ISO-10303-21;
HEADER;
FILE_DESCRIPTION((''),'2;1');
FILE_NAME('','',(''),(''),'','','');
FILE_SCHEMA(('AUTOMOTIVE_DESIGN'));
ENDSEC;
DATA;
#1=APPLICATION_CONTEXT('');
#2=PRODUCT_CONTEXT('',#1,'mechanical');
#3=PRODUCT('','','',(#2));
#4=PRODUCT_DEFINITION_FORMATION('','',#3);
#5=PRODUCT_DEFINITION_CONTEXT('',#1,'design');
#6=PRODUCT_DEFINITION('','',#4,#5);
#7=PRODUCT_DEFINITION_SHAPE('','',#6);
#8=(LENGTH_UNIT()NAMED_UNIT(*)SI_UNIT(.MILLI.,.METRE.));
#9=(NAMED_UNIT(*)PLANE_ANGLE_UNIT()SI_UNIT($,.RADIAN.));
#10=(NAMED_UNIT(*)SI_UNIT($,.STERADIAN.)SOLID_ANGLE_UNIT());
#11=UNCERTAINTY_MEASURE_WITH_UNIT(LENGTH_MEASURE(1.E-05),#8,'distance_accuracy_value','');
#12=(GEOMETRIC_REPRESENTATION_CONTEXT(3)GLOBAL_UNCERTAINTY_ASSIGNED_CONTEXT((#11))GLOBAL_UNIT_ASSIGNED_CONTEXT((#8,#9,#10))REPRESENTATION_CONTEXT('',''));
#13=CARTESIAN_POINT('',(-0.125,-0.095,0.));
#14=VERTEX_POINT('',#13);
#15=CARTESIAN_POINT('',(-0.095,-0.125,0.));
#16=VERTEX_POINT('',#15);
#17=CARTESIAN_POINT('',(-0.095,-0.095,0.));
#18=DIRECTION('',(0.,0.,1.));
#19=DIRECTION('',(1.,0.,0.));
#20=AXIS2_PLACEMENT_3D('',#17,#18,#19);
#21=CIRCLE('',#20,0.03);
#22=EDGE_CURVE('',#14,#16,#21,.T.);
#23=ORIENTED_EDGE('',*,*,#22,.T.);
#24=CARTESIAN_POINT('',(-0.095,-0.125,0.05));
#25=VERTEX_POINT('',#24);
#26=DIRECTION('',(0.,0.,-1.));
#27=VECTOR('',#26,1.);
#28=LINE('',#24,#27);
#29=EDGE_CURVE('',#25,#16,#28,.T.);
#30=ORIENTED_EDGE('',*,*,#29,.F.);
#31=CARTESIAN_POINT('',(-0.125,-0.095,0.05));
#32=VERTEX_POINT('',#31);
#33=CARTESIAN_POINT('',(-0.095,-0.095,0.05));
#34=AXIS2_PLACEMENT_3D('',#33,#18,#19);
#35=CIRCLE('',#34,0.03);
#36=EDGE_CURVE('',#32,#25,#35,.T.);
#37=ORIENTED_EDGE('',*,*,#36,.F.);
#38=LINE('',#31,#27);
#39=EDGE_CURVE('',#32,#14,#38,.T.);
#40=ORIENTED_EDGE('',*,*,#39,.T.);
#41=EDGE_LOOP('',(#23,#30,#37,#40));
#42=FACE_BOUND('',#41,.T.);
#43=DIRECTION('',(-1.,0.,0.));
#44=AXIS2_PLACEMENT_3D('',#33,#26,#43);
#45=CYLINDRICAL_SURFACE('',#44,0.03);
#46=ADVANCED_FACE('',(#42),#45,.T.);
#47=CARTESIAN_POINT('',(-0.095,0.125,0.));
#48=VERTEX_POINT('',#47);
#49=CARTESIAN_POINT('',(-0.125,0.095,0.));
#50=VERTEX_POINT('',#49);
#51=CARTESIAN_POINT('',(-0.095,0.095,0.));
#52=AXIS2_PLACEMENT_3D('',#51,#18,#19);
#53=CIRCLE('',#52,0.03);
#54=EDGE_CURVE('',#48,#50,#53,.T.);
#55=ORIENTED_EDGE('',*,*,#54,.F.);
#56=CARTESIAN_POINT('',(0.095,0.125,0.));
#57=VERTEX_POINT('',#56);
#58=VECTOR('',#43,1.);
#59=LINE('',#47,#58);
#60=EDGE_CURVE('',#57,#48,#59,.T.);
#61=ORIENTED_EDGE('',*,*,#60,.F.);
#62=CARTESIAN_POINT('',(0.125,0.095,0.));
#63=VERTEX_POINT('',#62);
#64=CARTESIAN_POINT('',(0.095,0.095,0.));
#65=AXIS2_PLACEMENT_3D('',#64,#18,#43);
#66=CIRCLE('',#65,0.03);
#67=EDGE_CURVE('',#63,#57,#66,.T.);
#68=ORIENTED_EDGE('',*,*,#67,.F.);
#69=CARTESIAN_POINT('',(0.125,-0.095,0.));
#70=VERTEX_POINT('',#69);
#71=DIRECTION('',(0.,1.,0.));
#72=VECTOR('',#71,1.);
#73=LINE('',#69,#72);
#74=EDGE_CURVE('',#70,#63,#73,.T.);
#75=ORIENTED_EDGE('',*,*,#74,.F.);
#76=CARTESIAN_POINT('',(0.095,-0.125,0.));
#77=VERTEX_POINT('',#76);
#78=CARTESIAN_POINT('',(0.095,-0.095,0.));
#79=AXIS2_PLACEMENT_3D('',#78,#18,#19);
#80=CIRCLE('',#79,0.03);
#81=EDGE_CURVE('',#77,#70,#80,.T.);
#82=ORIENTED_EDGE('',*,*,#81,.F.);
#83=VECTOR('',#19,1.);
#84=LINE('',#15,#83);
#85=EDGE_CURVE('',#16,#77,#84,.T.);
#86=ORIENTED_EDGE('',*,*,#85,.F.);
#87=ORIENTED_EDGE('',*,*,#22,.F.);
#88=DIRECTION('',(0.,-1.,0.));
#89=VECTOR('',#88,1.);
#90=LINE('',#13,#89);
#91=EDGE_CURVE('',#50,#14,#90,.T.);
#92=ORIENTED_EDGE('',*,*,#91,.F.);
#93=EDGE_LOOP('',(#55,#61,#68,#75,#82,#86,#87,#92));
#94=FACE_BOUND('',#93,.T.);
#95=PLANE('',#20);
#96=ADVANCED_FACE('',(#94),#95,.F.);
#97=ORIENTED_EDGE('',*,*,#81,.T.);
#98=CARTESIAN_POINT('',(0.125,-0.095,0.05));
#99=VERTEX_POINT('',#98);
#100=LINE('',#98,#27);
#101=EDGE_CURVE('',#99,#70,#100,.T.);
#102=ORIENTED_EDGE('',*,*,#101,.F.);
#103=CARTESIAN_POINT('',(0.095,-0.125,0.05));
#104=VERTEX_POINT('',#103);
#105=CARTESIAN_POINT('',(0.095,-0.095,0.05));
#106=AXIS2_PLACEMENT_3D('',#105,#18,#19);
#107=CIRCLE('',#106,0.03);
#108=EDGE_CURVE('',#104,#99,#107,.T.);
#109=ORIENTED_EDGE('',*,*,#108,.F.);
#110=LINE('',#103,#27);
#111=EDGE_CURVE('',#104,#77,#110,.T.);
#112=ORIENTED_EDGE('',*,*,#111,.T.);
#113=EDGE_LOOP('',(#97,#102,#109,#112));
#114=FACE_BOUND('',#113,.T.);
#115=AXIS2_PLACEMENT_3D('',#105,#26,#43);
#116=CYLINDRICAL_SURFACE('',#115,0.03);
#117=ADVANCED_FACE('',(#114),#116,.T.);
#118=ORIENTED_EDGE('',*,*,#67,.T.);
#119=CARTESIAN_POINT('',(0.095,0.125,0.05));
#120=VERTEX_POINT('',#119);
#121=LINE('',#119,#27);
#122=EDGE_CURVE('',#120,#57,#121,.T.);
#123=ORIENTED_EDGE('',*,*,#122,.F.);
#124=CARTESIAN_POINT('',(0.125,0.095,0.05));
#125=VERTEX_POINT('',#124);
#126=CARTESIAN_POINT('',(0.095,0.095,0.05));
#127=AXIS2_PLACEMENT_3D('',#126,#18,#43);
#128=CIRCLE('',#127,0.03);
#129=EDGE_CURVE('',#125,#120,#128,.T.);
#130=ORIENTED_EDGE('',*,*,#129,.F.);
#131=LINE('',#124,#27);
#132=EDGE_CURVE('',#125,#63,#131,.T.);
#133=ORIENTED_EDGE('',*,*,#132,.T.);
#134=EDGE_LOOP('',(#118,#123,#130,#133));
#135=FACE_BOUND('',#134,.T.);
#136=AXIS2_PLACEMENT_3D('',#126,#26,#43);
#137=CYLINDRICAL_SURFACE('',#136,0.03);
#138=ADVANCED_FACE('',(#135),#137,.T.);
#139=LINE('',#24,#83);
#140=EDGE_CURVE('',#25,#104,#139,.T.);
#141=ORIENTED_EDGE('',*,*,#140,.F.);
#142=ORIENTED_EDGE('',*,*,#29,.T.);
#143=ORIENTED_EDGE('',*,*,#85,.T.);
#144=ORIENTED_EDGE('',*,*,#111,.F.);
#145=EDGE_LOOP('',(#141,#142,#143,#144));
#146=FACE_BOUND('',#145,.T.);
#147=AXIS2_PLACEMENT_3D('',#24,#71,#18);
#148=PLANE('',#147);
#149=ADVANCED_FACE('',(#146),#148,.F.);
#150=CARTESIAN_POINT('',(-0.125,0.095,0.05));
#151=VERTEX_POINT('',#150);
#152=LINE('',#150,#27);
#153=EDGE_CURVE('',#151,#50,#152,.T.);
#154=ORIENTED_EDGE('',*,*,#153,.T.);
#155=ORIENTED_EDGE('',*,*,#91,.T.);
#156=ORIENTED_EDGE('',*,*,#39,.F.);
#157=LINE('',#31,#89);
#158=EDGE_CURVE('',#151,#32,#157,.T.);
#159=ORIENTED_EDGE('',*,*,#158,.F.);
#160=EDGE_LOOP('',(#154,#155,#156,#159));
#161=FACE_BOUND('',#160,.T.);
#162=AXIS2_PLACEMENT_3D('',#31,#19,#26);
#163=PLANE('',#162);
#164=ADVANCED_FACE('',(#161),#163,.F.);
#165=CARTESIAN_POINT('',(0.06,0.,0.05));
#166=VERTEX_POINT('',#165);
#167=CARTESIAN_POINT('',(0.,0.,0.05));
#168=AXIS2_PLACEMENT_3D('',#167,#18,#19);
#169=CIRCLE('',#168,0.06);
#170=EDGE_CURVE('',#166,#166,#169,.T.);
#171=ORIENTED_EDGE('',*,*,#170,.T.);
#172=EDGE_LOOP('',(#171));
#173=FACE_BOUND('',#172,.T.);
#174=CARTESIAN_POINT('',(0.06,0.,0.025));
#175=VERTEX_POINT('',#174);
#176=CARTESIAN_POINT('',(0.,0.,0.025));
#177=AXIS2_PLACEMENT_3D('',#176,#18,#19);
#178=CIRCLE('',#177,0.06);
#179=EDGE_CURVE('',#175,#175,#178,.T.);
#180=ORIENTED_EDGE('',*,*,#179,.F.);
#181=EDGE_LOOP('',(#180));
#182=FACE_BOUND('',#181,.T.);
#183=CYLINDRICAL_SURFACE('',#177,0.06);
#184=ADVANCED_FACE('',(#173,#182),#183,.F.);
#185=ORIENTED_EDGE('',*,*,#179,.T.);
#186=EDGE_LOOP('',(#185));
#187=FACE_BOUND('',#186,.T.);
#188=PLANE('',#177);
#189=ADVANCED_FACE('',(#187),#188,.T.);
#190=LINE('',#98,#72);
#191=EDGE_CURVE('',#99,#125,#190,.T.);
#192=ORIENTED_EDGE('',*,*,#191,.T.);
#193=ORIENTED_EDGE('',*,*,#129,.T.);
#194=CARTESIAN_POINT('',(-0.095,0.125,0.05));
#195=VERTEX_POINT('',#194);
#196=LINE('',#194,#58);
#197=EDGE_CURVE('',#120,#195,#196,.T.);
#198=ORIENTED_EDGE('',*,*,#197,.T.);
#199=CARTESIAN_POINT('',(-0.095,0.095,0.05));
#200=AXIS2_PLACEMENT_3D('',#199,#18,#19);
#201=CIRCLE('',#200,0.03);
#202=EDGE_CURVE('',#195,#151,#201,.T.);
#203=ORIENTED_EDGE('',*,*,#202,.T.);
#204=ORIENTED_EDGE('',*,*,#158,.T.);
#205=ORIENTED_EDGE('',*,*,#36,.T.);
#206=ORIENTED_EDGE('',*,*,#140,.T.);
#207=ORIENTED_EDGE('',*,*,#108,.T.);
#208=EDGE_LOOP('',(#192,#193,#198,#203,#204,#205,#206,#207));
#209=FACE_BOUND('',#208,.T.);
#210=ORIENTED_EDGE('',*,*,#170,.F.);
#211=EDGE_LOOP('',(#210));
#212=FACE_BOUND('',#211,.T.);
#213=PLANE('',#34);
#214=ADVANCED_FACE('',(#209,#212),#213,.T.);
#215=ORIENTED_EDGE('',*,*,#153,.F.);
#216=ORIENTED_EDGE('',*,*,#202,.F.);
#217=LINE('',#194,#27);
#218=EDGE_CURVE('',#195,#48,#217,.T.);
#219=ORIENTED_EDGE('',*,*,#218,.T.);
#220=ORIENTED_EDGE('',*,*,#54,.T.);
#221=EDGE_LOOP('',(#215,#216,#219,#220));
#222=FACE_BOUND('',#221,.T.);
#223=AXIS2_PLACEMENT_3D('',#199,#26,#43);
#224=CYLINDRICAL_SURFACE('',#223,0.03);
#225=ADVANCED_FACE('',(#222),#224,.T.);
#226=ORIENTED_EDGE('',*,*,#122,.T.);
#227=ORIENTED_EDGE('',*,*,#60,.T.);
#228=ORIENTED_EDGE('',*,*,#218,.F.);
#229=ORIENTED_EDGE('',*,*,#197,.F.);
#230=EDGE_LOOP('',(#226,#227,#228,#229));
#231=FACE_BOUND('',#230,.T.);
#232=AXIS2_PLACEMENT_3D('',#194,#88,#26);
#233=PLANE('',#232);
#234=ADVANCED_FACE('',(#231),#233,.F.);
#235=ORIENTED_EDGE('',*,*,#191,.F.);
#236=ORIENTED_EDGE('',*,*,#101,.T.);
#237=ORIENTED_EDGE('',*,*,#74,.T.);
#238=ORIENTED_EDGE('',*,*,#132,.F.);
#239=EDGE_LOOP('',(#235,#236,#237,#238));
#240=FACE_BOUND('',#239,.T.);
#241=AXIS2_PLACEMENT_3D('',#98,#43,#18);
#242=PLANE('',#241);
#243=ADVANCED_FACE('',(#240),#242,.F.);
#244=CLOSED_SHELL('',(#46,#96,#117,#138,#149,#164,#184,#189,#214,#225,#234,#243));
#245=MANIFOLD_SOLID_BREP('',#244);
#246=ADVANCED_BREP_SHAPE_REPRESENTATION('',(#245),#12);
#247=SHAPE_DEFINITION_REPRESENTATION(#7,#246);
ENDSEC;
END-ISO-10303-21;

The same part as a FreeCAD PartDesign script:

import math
import FreeCAD as App
import Part
import Sketcher

V = App.Vector

doc = App.newDocument("Part")
params = doc.addObject("Spreadsheet::Sheet", "Params")
for row, (alias, value) in enumerate([
    ("sketch1_radius", "0.03 mm"),
    ("sketch1_width", "0.19 mm"),
    ("pad1_length", "0.05 mm"),
    ("sketch2_diameter", "0.12 mm"),
    ("pocket1_length", "0.025 mm"),
], start=1):
    params.set(f"A{row}", alias)
    params.set(f"B{row}", "=" + value)
    params.setAlias(f"B{row}", alias)

body = doc.addObject("PartDesign::Body", "Body")

# Sketch on XY plane
sketch1 = body.newObject("Sketcher::SketchObject", "Sketch")
sketch1.AttachmentSupport = (doc.getObject("XY_Plane"), [""])
sketch1.MapMode = "FlatFace"
sketch1.addGeometry([
    Part.LineSegment(V(-0.095, -0.125, 0), V(0.095, -0.125, 0)),  # 0
    Part.ArcOfCircle(Part.Circle(V(0.095, -0.095, 0), V(0, 0, 1), 0.03), math.radians(-90), math.radians(0)),  # 1
    Part.LineSegment(V(0.125, -0.095, 0), V(0.125, 0.095, 0)),  # 2
    Part.ArcOfCircle(Part.Circle(V(0.095, 0.095, 0), V(0, 0, 1), 0.03), math.radians(0), math.radians(90)),  # 3
    Part.LineSegment(V(0.095, 0.125, 0), V(-0.095, 0.125, 0)),  # 4
    Part.ArcOfCircle(Part.Circle(V(-0.095, 0.095, 0), V(0, 0, 1), 0.03), math.radians(90), math.radians(180)),  # 5
    Part.LineSegment(V(-0.125, 0.095, 0), V(-0.125, -0.095, 0)),  # 6
    Part.ArcOfCircle(Part.Circle(V(-0.095, -0.095, 0), V(0, 0, 1), 0.03), math.radians(-180), math.radians(-90)),  # 7
], False)
sketch1.addConstraint([
    Sketcher.Constraint("Tangent", 0, 2, 1, 1),
    Sketcher.Constraint("Tangent", 1, 2, 2, 1),
    Sketcher.Constraint("Tangent", 2, 2, 3, 1),
    Sketcher.Constraint("Tangent", 3, 2, 4, 1),
    Sketcher.Constraint("Tangent", 4, 2, 5, 1),
    Sketcher.Constraint("Tangent", 5, 2, 6, 1),
    Sketcher.Constraint("Tangent", 6, 2, 7, 1),
    Sketcher.Constraint("Tangent", 7, 2, 0, 1),
    Sketcher.Constraint("Horizontal", 0),
    Sketcher.Constraint("Vertical", 2),
    Sketcher.Constraint("Horizontal", 4),
    Sketcher.Constraint("Vertical", 6),
    Sketcher.Constraint("Equal", 1, 3),
    Sketcher.Constraint("Equal", 3, 5),
    Sketcher.Constraint("Equal", 5, 7),
    Sketcher.Constraint("Symmetric", 1, 3, 5, 3, -1, 1),
    Sketcher.Constraint("Equal", 4, 2),
    Sketcher.Constraint("Radius", 1, 0.03),
    Sketcher.Constraint("DistanceX", 0, 1, 0, 2, 0.19),
])
sketch1.setExpression("Constraints[17]", "Params.sketch1_radius")
sketch1.setExpression("Constraints[18]", "Params.sketch1_width")
pad1 = body.newObject("PartDesign::Pad", "Pad")
pad1.Profile = sketch1
pad1.setExpression("Length", "Params.pad1_length")

# Sketch on XY plane
sketch2 = body.newObject("Sketcher::SketchObject", "Sketch001")
sketch2.AttachmentSupport = (doc.getObject("XY_Plane"), [""])
sketch2.MapMode = "FlatFace"
sketch2.AttachmentOffset = App.Placement(V(0, 0, 0.05), App.Rotation())
sketch2.addGeometry(Part.Circle(V(0, 0, 0), V(0, 0, 1), 0.06), False)
sketch2.addConstraint([
    Sketcher.Constraint("Coincident", 0, 3, -1, 1),
    Sketcher.Constraint("Diameter", 0, 0.12),
])
sketch2.setExpression("Constraints[1]", "Params.sketch2_diameter")
pocket1 = body.newObject("PartDesign::Pocket", "Pocket")
pocket1.Profile = sketch2
pocket1.setExpression("Length", "Params.pocket1_length")

doc.recompute()
